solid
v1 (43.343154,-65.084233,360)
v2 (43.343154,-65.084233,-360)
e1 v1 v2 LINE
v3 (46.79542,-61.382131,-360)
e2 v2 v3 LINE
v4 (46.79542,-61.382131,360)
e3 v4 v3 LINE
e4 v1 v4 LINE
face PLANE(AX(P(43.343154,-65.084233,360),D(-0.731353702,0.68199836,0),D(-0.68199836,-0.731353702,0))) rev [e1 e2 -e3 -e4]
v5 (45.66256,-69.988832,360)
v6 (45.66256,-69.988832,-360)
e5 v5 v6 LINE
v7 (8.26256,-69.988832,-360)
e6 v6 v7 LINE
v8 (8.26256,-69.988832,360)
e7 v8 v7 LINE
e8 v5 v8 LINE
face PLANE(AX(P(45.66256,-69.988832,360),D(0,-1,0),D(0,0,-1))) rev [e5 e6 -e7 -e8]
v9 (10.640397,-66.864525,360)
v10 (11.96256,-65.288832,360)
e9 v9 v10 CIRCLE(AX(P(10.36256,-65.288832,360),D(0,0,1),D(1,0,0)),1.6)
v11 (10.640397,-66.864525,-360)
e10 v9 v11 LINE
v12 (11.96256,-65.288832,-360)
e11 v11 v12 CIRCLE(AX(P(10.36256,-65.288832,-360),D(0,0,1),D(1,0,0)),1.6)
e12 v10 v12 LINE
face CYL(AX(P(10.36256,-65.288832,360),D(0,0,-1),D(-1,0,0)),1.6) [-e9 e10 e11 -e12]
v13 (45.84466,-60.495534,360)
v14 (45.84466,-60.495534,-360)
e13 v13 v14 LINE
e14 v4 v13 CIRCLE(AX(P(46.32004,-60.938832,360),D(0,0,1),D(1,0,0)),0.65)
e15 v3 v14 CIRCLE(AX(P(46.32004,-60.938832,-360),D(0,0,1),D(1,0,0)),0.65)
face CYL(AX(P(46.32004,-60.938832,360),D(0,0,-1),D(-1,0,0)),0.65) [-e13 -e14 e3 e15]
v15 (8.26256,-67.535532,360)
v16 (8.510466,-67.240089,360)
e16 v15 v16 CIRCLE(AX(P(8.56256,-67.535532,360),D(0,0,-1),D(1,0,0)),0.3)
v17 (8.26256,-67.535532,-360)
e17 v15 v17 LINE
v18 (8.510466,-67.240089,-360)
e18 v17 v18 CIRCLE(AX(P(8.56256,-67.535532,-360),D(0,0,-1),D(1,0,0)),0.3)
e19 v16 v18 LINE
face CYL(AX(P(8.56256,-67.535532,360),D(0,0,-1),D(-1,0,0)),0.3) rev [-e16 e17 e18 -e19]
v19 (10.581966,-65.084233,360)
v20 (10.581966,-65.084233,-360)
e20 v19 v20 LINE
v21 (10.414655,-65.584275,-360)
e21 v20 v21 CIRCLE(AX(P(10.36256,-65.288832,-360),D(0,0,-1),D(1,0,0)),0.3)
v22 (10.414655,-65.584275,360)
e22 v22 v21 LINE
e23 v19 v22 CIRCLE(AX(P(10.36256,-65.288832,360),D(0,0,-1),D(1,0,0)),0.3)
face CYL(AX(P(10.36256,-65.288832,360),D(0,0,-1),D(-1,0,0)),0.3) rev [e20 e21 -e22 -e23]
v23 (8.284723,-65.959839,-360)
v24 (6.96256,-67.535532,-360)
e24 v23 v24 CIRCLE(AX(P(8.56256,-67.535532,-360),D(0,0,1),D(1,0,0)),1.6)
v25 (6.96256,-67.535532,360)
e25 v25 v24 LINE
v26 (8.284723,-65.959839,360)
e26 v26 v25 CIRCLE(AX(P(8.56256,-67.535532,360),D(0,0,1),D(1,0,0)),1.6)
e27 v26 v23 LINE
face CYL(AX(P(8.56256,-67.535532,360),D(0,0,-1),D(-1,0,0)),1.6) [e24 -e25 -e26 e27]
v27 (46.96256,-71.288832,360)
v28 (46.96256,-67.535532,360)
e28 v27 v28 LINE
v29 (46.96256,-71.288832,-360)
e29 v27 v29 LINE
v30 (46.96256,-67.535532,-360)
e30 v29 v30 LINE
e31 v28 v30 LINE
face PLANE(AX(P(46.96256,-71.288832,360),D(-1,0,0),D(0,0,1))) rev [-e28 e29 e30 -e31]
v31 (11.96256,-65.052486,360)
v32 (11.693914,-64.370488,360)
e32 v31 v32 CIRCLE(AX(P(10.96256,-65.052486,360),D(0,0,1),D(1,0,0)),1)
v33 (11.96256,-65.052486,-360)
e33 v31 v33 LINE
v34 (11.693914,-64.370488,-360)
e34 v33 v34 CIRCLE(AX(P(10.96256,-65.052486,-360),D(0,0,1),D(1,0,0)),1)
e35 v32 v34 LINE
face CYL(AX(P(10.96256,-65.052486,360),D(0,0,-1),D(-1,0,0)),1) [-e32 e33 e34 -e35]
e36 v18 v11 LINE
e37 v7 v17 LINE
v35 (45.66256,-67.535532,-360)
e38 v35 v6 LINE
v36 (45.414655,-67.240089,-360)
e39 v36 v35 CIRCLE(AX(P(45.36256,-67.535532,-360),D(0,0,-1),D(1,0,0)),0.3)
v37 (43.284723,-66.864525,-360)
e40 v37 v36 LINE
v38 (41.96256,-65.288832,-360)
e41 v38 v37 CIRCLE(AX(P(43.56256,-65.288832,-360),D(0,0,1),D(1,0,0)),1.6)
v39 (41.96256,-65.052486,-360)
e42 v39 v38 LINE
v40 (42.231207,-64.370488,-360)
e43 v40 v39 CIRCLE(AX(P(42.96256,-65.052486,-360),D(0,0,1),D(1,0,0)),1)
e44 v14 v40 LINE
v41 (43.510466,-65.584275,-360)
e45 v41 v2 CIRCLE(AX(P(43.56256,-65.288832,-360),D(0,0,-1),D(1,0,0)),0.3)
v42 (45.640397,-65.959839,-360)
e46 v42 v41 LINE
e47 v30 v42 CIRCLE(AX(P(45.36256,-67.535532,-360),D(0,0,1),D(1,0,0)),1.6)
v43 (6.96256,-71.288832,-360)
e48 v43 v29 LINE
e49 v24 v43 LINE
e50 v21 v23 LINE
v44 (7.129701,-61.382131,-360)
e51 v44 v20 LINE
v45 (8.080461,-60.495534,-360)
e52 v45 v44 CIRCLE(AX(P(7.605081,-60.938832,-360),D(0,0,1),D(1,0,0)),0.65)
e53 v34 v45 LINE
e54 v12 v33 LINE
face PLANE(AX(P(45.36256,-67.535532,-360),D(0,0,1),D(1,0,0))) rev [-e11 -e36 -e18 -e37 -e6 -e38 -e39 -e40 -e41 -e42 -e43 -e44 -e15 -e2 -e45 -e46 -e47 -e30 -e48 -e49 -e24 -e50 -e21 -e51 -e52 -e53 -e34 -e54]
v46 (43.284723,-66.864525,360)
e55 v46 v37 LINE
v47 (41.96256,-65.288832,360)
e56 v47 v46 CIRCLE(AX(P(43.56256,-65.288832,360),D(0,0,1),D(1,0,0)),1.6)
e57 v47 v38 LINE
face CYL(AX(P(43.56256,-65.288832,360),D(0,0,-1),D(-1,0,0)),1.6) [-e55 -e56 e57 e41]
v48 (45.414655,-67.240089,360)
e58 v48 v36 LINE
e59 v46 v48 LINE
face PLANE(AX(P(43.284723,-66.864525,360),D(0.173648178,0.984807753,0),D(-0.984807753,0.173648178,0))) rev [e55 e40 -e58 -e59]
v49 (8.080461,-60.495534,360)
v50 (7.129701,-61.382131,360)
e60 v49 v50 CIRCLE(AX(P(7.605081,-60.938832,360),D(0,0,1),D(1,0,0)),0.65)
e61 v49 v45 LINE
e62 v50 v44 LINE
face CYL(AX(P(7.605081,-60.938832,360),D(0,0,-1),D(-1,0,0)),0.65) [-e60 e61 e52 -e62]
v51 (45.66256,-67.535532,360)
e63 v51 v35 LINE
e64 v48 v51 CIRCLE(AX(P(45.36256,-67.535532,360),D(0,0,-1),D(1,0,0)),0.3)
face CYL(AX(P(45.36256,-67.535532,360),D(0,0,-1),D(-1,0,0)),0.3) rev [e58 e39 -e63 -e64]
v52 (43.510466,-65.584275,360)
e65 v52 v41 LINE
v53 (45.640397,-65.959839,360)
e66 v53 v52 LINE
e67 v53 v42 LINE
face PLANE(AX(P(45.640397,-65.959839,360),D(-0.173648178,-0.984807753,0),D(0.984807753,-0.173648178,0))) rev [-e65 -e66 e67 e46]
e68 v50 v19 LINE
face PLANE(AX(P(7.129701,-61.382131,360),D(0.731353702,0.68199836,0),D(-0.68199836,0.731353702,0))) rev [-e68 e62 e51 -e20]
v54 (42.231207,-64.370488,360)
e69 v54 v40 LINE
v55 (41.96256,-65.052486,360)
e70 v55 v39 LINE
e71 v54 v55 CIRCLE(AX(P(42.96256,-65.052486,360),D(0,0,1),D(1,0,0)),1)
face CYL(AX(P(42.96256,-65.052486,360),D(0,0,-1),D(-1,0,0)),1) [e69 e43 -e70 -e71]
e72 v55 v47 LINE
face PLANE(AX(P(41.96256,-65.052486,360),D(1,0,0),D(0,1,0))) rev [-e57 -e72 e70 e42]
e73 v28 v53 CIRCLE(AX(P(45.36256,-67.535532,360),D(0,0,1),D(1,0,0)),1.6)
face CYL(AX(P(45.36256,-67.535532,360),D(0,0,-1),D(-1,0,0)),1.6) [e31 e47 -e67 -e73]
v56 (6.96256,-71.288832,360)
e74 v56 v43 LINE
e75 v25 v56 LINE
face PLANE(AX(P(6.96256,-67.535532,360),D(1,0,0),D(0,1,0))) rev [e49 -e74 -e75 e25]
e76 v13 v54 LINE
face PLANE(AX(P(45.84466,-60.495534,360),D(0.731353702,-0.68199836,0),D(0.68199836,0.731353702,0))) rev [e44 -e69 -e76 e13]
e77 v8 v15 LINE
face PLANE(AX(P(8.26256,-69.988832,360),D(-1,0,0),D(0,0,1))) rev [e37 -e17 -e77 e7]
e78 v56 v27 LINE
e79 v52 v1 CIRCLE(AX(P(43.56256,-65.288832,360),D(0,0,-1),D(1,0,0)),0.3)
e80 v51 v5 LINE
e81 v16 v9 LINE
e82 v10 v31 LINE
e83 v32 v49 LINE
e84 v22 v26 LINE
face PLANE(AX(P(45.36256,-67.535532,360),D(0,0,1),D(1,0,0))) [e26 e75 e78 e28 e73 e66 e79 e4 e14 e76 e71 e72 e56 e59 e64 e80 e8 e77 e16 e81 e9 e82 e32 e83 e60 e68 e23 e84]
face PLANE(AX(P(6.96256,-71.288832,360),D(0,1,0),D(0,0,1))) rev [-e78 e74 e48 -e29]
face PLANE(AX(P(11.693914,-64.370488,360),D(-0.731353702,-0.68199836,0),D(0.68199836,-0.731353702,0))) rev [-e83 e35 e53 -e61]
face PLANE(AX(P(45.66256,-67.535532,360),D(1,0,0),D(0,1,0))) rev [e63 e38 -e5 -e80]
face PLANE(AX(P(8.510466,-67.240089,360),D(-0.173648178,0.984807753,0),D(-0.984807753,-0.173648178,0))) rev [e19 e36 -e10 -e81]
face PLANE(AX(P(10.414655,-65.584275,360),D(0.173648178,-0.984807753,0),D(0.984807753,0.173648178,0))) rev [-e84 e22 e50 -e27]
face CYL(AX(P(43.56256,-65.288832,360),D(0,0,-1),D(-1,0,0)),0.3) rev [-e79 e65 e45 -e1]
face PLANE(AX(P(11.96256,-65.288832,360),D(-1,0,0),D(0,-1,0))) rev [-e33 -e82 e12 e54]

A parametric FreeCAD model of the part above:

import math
import FreeCAD as App
import Part
import Sketcher
Q = App.Units.Quantity

doc = App.newDocument("Part")
params = doc.addObject("Spreadsheet::Sheet", "Params")
for row, (alias, value) in enumerate([
    ("sketch1_radius", "1 mm"),
    ("sketch1_radius2", "1.6 mm"),
    ("sketch1_radius3", "0.3 mm"),
    ("sketch1_width", "40 mm"),
    ("sketch1_radius4", "0.65 mm"),
    ("pad1_length", "720 mm"),
], start=1):
    params.set(f"A{row}", alias)
    params.set(f"B{row}", "=" + value)
    params.setAlias(f"B{row}", alias)

body = doc.addObject("PartDesign::Body", "Body")

# Sketch on XY plane
sketch1 = doc.addObject("Sketcher::SketchObject", "Sketch")
body.addObject(sketch1)
sketch1.AttachmentSupport = (doc.XY_Plane, [""])
sketch1.MapMode = "FlatFace"
sketch1.addGeometry(Part.LineSegment(App.Vector(46.96256, -71.288832, 0), App.Vector(46.96256, -67.535532, 0)), False)
sketch1.addGeometry(Part.ArcOfCircle(Part.Circle(App.Vector(45.36256, -67.535532, 0), App.Vector(0, 0, 1), 1.6), math.radians(0), math.radians(80)), False)
sketch1.addGeometry(Part.LineSegment(App.Vector(45.640397, -65.959839, 0), App.Vector(43.510466, -65.584275, 0)), False)
sketch1.addGeometry(Part.ArcOfCircle(Part.Circle(App.Vector(43.56256, -65.288832, 0), App.Vector(0, 0, 1), 0.3), math.radians(137), math.radians(260)), False)
sketch1.addGeometry(Part.LineSegment(App.Vector(43.343154, -65.084233, 0), App.Vector(46.79542, -61.382131, 0)), False)
sketch1.addGeometry(Part.ArcOfCircle(Part.Circle(App.Vector(46.32004, -60.938832, 0), App.Vector(0, 0, 1), 0.65), math.radians(-43), math.radians(137)), False)
sketch1.addGeometry(Part.LineSegment(App.Vector(45.84466, -60.495534, 0), App.Vector(42.231207, -64.370488, 0)), False)
sketch1.addGeometry(Part.ArcOfCircle(Part.Circle(App.Vector(42.96256, -65.052486, 0), App.Vector(0, 0, 1), 1), math.radians(137), math.radians(180)), False)
sketch1.addGeometry(Part.LineSegment(App.Vector(41.96256, -65.052486, 0), App.Vector(41.96256, -65.288832, 0)), False)
sketch1.addGeometry(Part.ArcOfCircle(Part.Circle(App.Vector(43.56256, -65.288832, 0), App.Vector(0, 0, 1), 1.6), math.radians(-180), math.radians(-100)), False)
sketch1.addGeometry(Part.LineSegment(App.Vector(43.284723, -66.864525, 0), App.Vector(45.414655, -67.240089, 0)), False)
sketch1.addGeometry(Part.ArcOfCircle(Part.Circle(App.Vector(45.36256, -67.535532, 0), App.Vector(0, 0, 1), 0.3), math.radians(0), math.radians(80)), False)
sketch1.addGeometry(Part.LineSegment(App.Vector(45.66256, -67.535532, 0), App.Vector(45.66256, -69.988832, 0)), False)
sketch1.addGeometry(Part.LineSegment(App.Vector(45.66256, -69.988832, 0), App.Vector(8.26256, -69.988832, 0)), False)
sketch1.addGeometry(Part.LineSegment(App.Vector(8.26256, -69.988832, 0), App.Vector(8.26256, -67.535532, 0)), False)
sketch1.addGeometry(Part.ArcOfCircle(Part.Circle(App.Vector(8.56256, -67.535532, 0), App.Vector(0, 0, 1), 0.3), math.radians(100), math.radians(180)), False)
sketch1.addGeometry(Part.LineSegment(App.Vector(8.510466, -67.240089, 0), App.Vector(10.640397, -66.864525, 0)), False)
sketch1.addGeometry(Part.ArcOfCircle(Part.Circle(App.Vector(10.36256, -65.288832, 0), App.Vector(0, 0, 1), 1.6), math.radians(-80), math.radians(0)), False)
sketch1.addGeometry(Part.LineSegment(App.Vector(11.96256, -65.288832, 0), App.Vector(11.96256, -65.052486, 0)), False)
sketch1.addGeometry(Part.ArcOfCircle(Part.Circle(App.Vector(10.96256, -65.052486, 0), App.Vector(0, 0, 1), 1), math.radians(0), math.radians(43)), False)
sketch1.addGeometry(Part.LineSegment(App.Vector(11.693914, -64.370488, 0), App.Vector(8.080461, -60.495534, 0)), False)
sketch1.addGeometry(Part.ArcOfCircle(Part.Circle(App.Vector(7.605081, -60.938832, 0), App.Vector(0, 0, 1), 0.65), math.radians(43), math.radians(223)), False)
sketch1.addGeometry(Part.LineSegment(App.Vector(7.129701, -61.382131, 0), App.Vector(10.581966, -65.084233, 0)), False)
sketch1.addGeometry(Part.ArcOfCircle(Part.Circle(App.Vector(10.36256, -65.288832, 0), App.Vector(0, 0, 1), 0.3), math.radians(-80), math.radians(43)), False)
sketch1.addGeometry(Part.LineSegment(App.Vector(10.414655, -65.584275, 0), App.Vector(8.284723, -65.959839, 0)), False)
sketch1.addGeometry(Part.ArcOfCircle(Part.Circle(App.Vector(8.56256, -67.535532, 0), App.Vector(0, 0, 1), 1.6), math.radians(100), math.radians(180)), False)
sketch1.addGeometry(Part.LineSegment(App.Vector(6.96256, -67.535532, 0), App.Vector(6.96256, -71.288832, 0)), False)
sketch1.addGeometry(Part.LineSegment(App.Vector(6.96256, -71.288832, 0), App.Vector(46.96256, -71.288832, 0)), False)
sketch1.addConstraint(Sketcher.Constraint("Tangent", 0, 2, 1, 1))
sketch1.addConstraint(Sketcher.Constraint("Tangent", 1, 2, 2, 1))
sketch1.addConstraint(Sketcher.Constraint("Tangent", 2, 2, 3, 2))
sketch1.addConstraint(Sketcher.Constraint("Tangent", 3, 1, 4, 1))
sketch1.addConstraint(Sketcher.Constraint("Tangent", 4, 2, 5, 1))
sketch1.addConstraint(Sketcher.Constraint("Tangent", 5, 2, 6, 1))
sketch1.addConstraint(Sketcher.Constraint("Tangent", 6, 2, 7, 1))
sketch1.addConstraint(Sketcher.Constraint("Tangent", 7, 2, 8, 1))
sketch1.addConstraint(Sketcher.Constraint("Tangent", 8, 2, 9, 1))
sketch1.addConstraint(Sketcher.Constraint("Tangent", 9, 2, 10, 1))
sketch1.addConstraint(Sketcher.Constraint("Tangent", 10, 2, 11, 2))
sketch1.addConstraint(Sketcher.Constraint("Tangent", 11, 1, 12, 1))
sketch1.addConstraint(Sketcher.Constraint("Coincident", 12, 2, 13, 1))
sketch1.addConstraint(Sketcher.Constraint("Coincident", 13, 2, 14, 1))
sketch1.addConstraint(Sketcher.Constraint("Tangent", 14, 2, 15, 2))
sketch1.addConstraint(Sketcher.Constraint("Tangent", 15, 1, 16, 1))
sketch1.addConstraint(Sketcher.Constraint("Tangent", 16, 2, 17, 1))
sketch1.addConstraint(Sketcher.Constraint("Tangent", 17, 2, 18, 1))
sketch1.addConstraint(Sketcher.Constraint("Tangent", 18, 2, 19, 1))
sketch1.addConstraint(Sketcher.Constraint("Tangent", 19, 2, 20, 1))
sketch1.addConstraint(Sketcher.Constraint("Tangent", 20, 2, 21, 1))
sketch1.addConstraint(Sketcher.Constraint("Tangent", 21, 2, 22, 1))
sketch1.addConstraint(Sketcher.Constraint("Tangent", 22, 2, 23, 2))
sketch1.addConstraint(Sketcher.Constraint("Tangent", 23, 1, 24, 1))
sketch1.addConstraint(Sketcher.Constraint("Tangent", 24, 2, 25, 1))
sketch1.addConstraint(Sketcher.Constraint("Tangent", 25, 2, 26, 1))
sketch1.addConstraint(Sketcher.Constraint("Coincident", 26, 2, 27, 1))
sketch1.addConstraint(Sketcher.Constraint("Coincident", 27, 2, 0, 1))
sketch1.addConstraint(Sketcher.Constraint("Vertical", 0))
sketch1.addConstraint(Sketcher.Constraint("Vertical", 8))
sketch1.addConstraint(Sketcher.Constraint("Vertical", 12))
sketch1.addConstraint(Sketcher.Constraint("Horizontal", 13))
sketch1.addConstraint(Sketcher.Constraint("Vertical", 14))
sketch1.addConstraint(Sketcher.Constraint("Vertical", 18))
sketch1.addConstraint(Sketcher.Constraint("Vertical", 26))
sketch1.addConstraint(Sketcher.Constraint("Horizontal", 27))
sketch1.addConstraint(Sketcher.Constraint("Coincident", 9, 3, 3, 3))
sketch1.addConstraint(Sketcher.Constraint("Coincident", 11, 3, 1, 3))
sketch1.addConstraint(Sketcher.Constraint("Coincident", 23, 3, 17, 3))
sketch1.addConstraint(Sketcher.Constraint("Coincident", 25, 3, 15, 3))
sketch1.addConstraint(Sketcher.Constraint("Equal", 1, 9))
sketch1.addConstraint(Sketcher.Constraint("Equal", 3, 11))
sketch1.addConstraint(Sketcher.Constraint("Equal", 11, 15))
sketch1.addConstraint(Sketcher.Constraint("Equal", 9, 17))
sketch1.addConstraint(Sketcher.Constraint("Equal", 7, 19))
sketch1.addConstraint(Sketcher.Constraint("Equal", 5, 21))
sketch1.addConstraint(Sketcher.Constraint("Equal", 15, 23))
sketch1.addConstraint(Sketcher.Constraint("Equal", 17, 25))
sketch1.addConstraint(Sketcher.Constraint("Parallel", 4, 6))
sketch1.addConstraint(Sketcher.Constraint("Parallel", 20, 22))
sketch1.addConstraint(Sketcher.Constraint("Horizontal", 11, 3, 15, 3))
sketch1.addConstraint(Sketcher.Constraint("Horizontal", 9, 3, 17, 3))
sketch1.addConstraint(Sketcher.Constraint("Horizontal", 7, 3, 19, 3))
sketch1.addConstraint(Sketcher.Constraint("Horizontal", 5, 3, 21, 3))
sketch1.addConstraint(Sketcher.Constraint("Horizontal", 9, 2, 16, 2))
sketch1.addConstraint(Sketcher.Constraint("Radius", 7, 1.0))
sketch1.addConstraint(Sketcher.Constraint("Radius", 1, 1.6))
sketch1.addConstraint(Sketcher.Constraint("Radius", 3, 0.3))
sketch1.addConstraint(Sketcher.Constraint("DistanceX", 27, 1, 27, 2, 40.0))
sketch1.addConstraint(Sketcher.Constraint("Angle", 2, Q("170 deg")))
sketch1.addConstraint(Sketcher.Constraint("Angle", 4, Q("47 deg")))
sketch1.addConstraint(Sketcher.Constraint("Radius", 5, 0.65))
sketch1.addConstraint(Sketcher.Constraint("DistanceX", 15, 3, 3, 3, 35.0))
sketch1.addConstraint(Sketcher.Constraint("DistanceY", 13, 2, 23, 3, 4.7))
sketch1.addConstraint(Sketcher.Constraint("DistanceY", 26, 2, 13, 2, 1.3))
sketch1.addConstraint(Sketcher.Constraint("DistanceY", 3, 3, 5, 3, 4.35))
sketch1.addConstraint(Sketcher.Constraint("DistanceX", -1, 1, 21, 2, 7.129701))
sketch1.addConstraint(Sketcher.Constraint("DistanceY", 1, 3, -1, 1, 67.535532))
sketch1.setExpression("Constraints[55]", "Params.sketch1_radius")
sketch1.setExpression("Constraints[56]", "Params.sketch1_radius2")
sketch1.setExpression("Constraints[57]", "Params.sketch1_radius3")
sketch1.setExpression("Constraints[58]", "Params.sketch1_width")
sketch1.setExpression("Constraints[61]", "Params.sketch1_radius4")
pad1 = doc.addObject("PartDesign::Pad", "Pad")
body.addObject(pad1)
pad1.Profile = sketch1
pad1.setExpression("Length", "Params.pad1_length")
pad1.Midplane = True

doc.recompute()
